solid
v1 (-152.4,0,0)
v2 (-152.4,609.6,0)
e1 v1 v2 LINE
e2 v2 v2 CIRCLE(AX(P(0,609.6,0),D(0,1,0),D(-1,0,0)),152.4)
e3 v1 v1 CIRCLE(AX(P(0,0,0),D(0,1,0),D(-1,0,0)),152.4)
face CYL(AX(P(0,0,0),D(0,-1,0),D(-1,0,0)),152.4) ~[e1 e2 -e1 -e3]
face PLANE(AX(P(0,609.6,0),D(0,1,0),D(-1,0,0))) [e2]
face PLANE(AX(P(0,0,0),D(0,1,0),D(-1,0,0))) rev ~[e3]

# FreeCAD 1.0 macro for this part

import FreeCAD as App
import Part
import Sketcher
from FreeCAD import Vector
Q = App.Units.Quantity

doc = App.newDocument("Part")
body = doc.addObject("PartDesign::Body", "Body")

# Sketch on XZ plane
sketch1 = body.newObject("Sketcher::SketchObject", "Sketch")
sketch1.AttachmentSupport = (doc.getObject("XZ_Plane"), [""])
sketch1.MapMode = "FlatFace"
sketch1.addGeometry(Part.Circle(Vector(0, 0, 0), Vector(0, 0, 1), 152), False)
sketch1.addConstraint([
    Sketcher.Constraint("Coincident", 0, 3, -1, 1),
    Sketcher.Constraint("Diameter", 0, Q("12 in")),
])
pad1 = body.newObject("PartDesign::Pad", "Pad")
pad1.Profile = sketch1
pad1.Length = Q("24 in")
pad1.Reversed = True

doc.recompute()
